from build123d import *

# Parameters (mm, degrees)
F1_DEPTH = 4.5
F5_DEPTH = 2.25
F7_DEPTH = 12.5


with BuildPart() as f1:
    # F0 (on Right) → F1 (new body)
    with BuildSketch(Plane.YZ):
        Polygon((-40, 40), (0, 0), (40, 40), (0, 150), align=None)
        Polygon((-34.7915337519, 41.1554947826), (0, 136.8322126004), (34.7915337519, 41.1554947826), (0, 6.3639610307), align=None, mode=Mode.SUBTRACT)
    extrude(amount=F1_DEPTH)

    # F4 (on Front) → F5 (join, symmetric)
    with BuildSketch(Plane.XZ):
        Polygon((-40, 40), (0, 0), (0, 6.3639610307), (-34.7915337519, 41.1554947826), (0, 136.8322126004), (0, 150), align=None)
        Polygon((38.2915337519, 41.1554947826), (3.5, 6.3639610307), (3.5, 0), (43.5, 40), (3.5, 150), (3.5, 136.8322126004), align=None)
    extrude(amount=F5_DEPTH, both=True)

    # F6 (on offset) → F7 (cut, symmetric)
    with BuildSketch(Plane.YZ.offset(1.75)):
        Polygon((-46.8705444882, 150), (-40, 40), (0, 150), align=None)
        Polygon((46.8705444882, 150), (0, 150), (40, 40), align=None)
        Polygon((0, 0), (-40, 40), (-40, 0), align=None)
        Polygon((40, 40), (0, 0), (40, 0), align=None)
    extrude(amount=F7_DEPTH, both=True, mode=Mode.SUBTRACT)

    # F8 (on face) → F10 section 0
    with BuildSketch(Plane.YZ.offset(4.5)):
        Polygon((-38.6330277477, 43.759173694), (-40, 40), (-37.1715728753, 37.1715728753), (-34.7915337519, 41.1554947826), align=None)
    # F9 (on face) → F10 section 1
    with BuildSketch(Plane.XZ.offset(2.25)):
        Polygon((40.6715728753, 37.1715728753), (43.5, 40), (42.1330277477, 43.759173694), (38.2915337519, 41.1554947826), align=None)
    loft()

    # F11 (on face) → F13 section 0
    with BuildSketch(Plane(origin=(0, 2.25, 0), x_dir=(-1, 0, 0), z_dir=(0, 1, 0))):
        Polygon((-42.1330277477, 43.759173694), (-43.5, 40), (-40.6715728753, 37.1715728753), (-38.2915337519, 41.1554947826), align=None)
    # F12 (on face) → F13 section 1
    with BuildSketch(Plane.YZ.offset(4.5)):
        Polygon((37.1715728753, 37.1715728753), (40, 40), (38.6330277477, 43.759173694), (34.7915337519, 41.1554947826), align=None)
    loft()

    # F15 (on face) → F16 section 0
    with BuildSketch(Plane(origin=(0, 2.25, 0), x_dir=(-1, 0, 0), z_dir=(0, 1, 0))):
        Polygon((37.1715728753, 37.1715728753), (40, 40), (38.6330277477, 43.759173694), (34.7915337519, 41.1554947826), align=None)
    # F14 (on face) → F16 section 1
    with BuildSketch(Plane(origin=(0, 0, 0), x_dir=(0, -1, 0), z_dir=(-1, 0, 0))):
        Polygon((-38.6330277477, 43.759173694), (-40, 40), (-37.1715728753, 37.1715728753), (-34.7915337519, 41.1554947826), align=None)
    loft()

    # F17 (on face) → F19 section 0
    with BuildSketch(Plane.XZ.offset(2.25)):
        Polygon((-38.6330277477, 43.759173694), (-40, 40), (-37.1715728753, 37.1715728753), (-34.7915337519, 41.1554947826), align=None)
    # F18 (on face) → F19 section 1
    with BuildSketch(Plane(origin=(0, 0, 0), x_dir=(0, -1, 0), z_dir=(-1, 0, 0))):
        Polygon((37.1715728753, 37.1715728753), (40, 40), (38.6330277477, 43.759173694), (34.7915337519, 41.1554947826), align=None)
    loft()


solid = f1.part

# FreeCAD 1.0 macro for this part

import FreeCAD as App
import Part
import Sketcher
from FreeCAD import Vector
Q = App.Units.Quantity

doc = App.newDocument("Part")
body = doc.addObject("PartDesign::Body", "Body")

# Sketch on YZ plane
sketch1 = doc.addObject("Sketcher::SketchObject", "Sketch")
body.addObject(sketch1)
sketch1.AttachmentSupport = (doc.YZ_Plane, [""])
sketch1.MapMode = "FlatFace"
sketch1.addGeometry([
    Part.LineSegment(Vector(-40, 40, 0), Vector(0, 0, 0)),  # 0
    Part.LineSegment(Vector(0, 0, 0), Vector(40, 40, 0)),  # 1
    Part.LineSegment(Vector(40, 40, 0), Vector(0, 150, 0)),  # 2
    Part.LineSegment(Vector(0, 150, 0), Vector(-40, 40, 0)),  # 3
    Part.LineSegment(Vector(0, 6, 0), Vector(-35, 41, 0)),  # 4
    Part.LineSegment(Vector(-35, 41, 0), Vector(0, 137, 0)),  # 5
    Part.LineSegment(Vector(0, 137, 0), Vector(35, 41, 0)),  # 6
    Part.LineSegment(Vector(35, 41, 0), Vector(0, 6, 0)),  # 7
], False)
sketch1.addConstraint([
    Sketcher.Constraint("Coincident", 0, 2, 1, 1),
    Sketcher.Constraint("Coincident", 1, 2, 2, 1),
    Sketcher.Constraint("Coincident", 2, 2, 3, 1),
    Sketcher.Constraint("Coincident", 3, 2, 0, 1),
    Sketcher.Constraint("Coincident", 4, 2, 5, 1),
    Sketcher.Constraint("Coincident", 5, 2, 6, 1),
    Sketcher.Constraint("Coincident", 6, 2, 7, 1),
    Sketcher.Constraint("Coincident", 7, 2, 4, 1),
    Sketcher.Constraint("Coincident", 0, 2, -1, 1),
    Sketcher.Constraint("Symmetric", 1, 2, 3, 2, -2),
    Sketcher.Constraint("Symmetric", 4, 2, 6, 2, -2),
    Sketcher.Constraint("PointOnObject", 2, 2, -2),
    Sketcher.Constraint("PointOnObject", 5, 2, -2),
    Sketcher.Constraint("PointOnObject", 7, 2, -2),
    Sketcher.Constraint("Perpendicular", 0, 1),
    Sketcher.Constraint("Perpendicular", 1, 4),
    Sketcher.Constraint("Parallel", 3, 5),
    Sketcher.Constraint("DistanceX", -1, 1, 1, 2, Q("40 mm")),
    Sketcher.Constraint("DistanceY", -1, 1, 2, 2, Q("150 mm")),
    Sketcher.Constraint("Distance", 4, Q("49.202659 mm")),
    Sketcher.Constraint("DistanceY", -1, 1, 7, 2, Q("6.363961 mm")),
])
pad1 = doc.addObject("PartDesign::Pad", "Pad")
body.addObject(pad1)
pad1.Profile = sketch1
pad1.Length = 4.5

# Sketch on XZ plane
sketch2 = doc.addObject("Sketcher::SketchObject", "Sketch001")
body.addObject(sketch2)
sketch2.AttachmentSupport = (doc.XZ_Plane, [""])
sketch2.MapMode = "FlatFace"
sketch2.addGeometry([
    Part.LineSegment(Vector(-40, 40, 0), Vector(0, 0, 0)),  # 0
    Part.LineSegment(Vector(0, 0, 0), Vector(0, 6, 0)),  # 1
    Part.LineSegment(Vector(0, 6, 0), Vector(-35, 41, 0)),  # 2
    Part.LineSegment(Vector(-35, 41, 0), Vector(0, 137, 0)),  # 3
    Part.LineSegment(Vector(0, 137, 0), Vector(0, 150, 0)),  # 4
    Part.LineSegment(Vector(0, 150, 0), Vector(-40, 40, 0)),  # 5
    Part.LineSegment(Vector(38, 41, 0), Vector(4, 6, 0)),  # 6
    Part.LineSegment(Vector(4, 6, 0), Vector(4, 0, 0)),  # 7
    Part.LineSegment(Vector(4, 0, 0), Vector(44, 40, 0)),  # 8
    Part.LineSegment(Vector(44, 40, 0), Vector(4, 150, 0)),  # 9
    Part.LineSegment(Vector(4, 150, 0), Vector(4, 137, 0)),  # 10
    Part.LineSegment(Vector(4, 137, 0), Vector(38, 41, 0)),  # 11
], False)
sketch2.addConstraint([
    Sketcher.Constraint("Coincident", 0, 2, 1, 1),
    Sketcher.Constraint("Coincident", 1, 2, 2, 1),
    Sketcher.Constraint("Coincident", 2, 2, 3, 1),
    Sketcher.Constraint("Coincident", 3, 2, 4, 1),
    Sketcher.Constraint("Coincident", 4, 2, 5, 1),
    Sketcher.Constraint("Coincident", 5, 2, 0, 1),
    Sketcher.Constraint("Coincident", 6, 2, 7, 1),
    Sketcher.Constraint("Coincident", 7, 2, 8, 1),
    Sketcher.Constraint("Coincident", 8, 2, 9, 1),
    Sketcher.Constraint("Coincident", 9, 2, 10, 1),
    Sketcher.Constraint("Coincident", 10, 2, 11, 1),
    Sketcher.Constraint("Coincident", 11, 2, 6, 1),
    Sketcher.Constraint("Vertical", 1),
    Sketcher.Constraint("Vertical", 4),
    Sketcher.Constraint("Vertical", 7),
    Sketcher.Constraint("Vertical", 10),
    Sketcher.Constraint("Coincident", 0, 2, -1, 1),
    Sketcher.Constraint("PointOnObject", 3, 2, -2),
    Sketcher.Constraint("PointOnObject", 7, 2, -1),
    Sketcher.Constraint("Parallel", 0, 2),
    Sketcher.Constraint("Parallel", 3, 5),
    Sketcher.Constraint("Perpendicular", 2, 6),
    Sketcher.Constraint("Parallel", 6, 8),
    Sketcher.Constraint("Parallel", 9, 11),
    Sketcher.Constraint("Horizontal", 1, 2, 6, 2),
    Sketcher.Constraint("Horizontal", 5, 2, 8, 2),
    Sketcher.Constraint("Horizontal", 4, 2, 9, 2),
    Sketcher.Constraint("Horizontal", 3, 2, 10, 2),
    Sketcher.Constraint("Horizontal", 2, 2, 11, 2),
    Sketcher.Constraint("Equal", 2, 6),
    Sketcher.Constraint("DistanceY", -1, 1, 4, 2, Q("150 mm")),
    Sketcher.Constraint("DistanceX", 5, 2, -1, 1, Q("40 mm")),
    Sketcher.Constraint("DistanceX", -1, 1, 6, 2, Q("3.5 mm")),
    Sketcher.Constraint("DistanceY", 1, 1, 1, 2, Q("6.363961 mm")),
    Sketcher.Constraint("Distance", 2, Q("49.202659 mm")),
])
pad2 = doc.addObject("PartDesign::Pad", "Pad001")
body.addObject(pad2)
pad2.Profile = sketch2
pad2.Length = 4.5
pad2.Midplane = True

# Sketch on YZ plane
sketch3 = doc.addObject("Sketcher::SketchObject", "Sketch002")
body.addObject(sketch3)
sketch3.AttachmentSupport = (doc.YZ_Plane, [""])
sketch3.MapMode = "FlatFace"
sketch3.AttachmentOffset = App.Placement(Vector(0, 0, 1.75), App.Rotation())
sketch3.addGeometry([
    Part.LineSegment(Vector(-47, 150, 0), Vector(-40, 40, 0)),  # 0
    Part.LineSegment(Vector(-40, 40, 0), Vector(0, 150, 0)),  # 1
    Part.LineSegment(Vector(0, 150, 0), Vector(-47, 150, 0)),  # 2
    Part.LineSegment(Vector(47, 150, 0), Vector(0, 150, 0)),  # 3
    Part.LineSegment(Vector(0, 150, 0), Vector(40, 40, 0)),  # 4
    Part.LineSegment(Vector(40, 40, 0), Vector(47, 150, 0)),  # 5
    Part.LineSegment(Vector(0, 0, 0), Vector(-40, 40, 0)),  # 6
    Part.LineSegment(Vector(-40, 40, 0), Vector(-40, 0, 0)),  # 7
    Part.LineSegment(Vector(-40, 0, 0), Vector(0, 0, 0)),  # 8
    Part.LineSegment(Vector(40, 40, 0), Vector(0, 0, 0)),  # 9
    Part.LineSegment(Vector(0, 0, 0), Vector(40, 0, 0)),  # 10
    Part.LineSegment(Vector(40, 0, 0), Vector(40, 40, 0)),  # 11
], False)
sketch3.addConstraint([
    Sketcher.Constraint("Coincident", 0, 2, 1, 1),
    Sketcher.Constraint("Coincident", 1, 2, 2, 1),
    Sketcher.Constraint("Coincident", 2, 2, 0, 1),
    Sketcher.Constraint("Coincident", 3, 2, 4, 1),
    Sketcher.Constraint("Coincident", 4, 2, 5, 1),
    Sketcher.Constraint("Coincident", 5, 2, 3, 1),
    Sketcher.Constraint("Coincident", 6, 2, 7, 1),
    Sketcher.Constraint("Coincident", 7, 2, 8, 1),
    Sketcher.Constraint("Coincident", 8, 2, 6, 1),
    Sketcher.Constraint("Coincident", 9, 2, 10, 1),
    Sketcher.Constraint("Coincident", 10, 2, 11, 1),
    Sketcher.Constraint("Coincident", 11, 2, 9, 1),
    Sketcher.Constraint("Horizontal", 2),
    Sketcher.Constraint("Horizontal", 3),
    Sketcher.Constraint("Vertical", 7),
    Sketcher.Constraint("Horizontal", 8),
    Sketcher.Constraint("Horizontal", 10),
    Sketcher.Constraint("Vertical", 11),
    Sketcher.Constraint("Coincident", 8, 2, -1, 1),
    Sketcher.Constraint("Coincident", 9, 2, -1, 1),
    Sketcher.Constraint("Coincident", 3, 2, 1, 2),
    Sketcher.Constraint("Coincident", 6, 2, 0, 2),
    Sketcher.Constraint("Coincident", 11, 2, 4, 2),
    Sketcher.Constraint("Symmetric", 0, 2, 4, 2, -2),
    Sketcher.Constraint("PointOnObject", 1, 2, -2),
    Sketcher.Constraint("Perpendicular", 6, 9),
    Sketcher.Constraint("Equal", 2, 3),
    Sketcher.Constraint("DistanceX", 8, 1, 8, 2, Q("40 mm")),
    Sketcher.Constraint("DistanceY", -1, 1, 1, 2, Q("150 mm")),
    Sketcher.Constraint("DistanceX", 2, 2, 2, 1, Q("46.870544 mm")),
])
pocket1 = doc.addObject("PartDesign::Pocket", "Pocket")
body.addObject(pocket1)
pocket1.Profile = sketch3
pocket1.Length = 25
pocket1.Midplane = True

# Sketch on YZ plane
sketch4 = doc.addObject("Sketcher::SketchObject", "Sketch003")
body.addObject(sketch4)
sketch4.AttachmentSupport = (doc.YZ_Plane, [""])
sketch4.MapMode = "FlatFace"
sketch4.AttachmentOffset = App.Placement(Vector(0, 0, 4.5), App.Rotation())
sketch4.addGeometry([
    Part.LineSegment(Vector(-38.6, 43.8, 0), Vector(-40, 40, 0)),
    Part.LineSegment(Vector(-40, 40, 0), Vector(-37.2, 37.2, 0)),
    Part.LineSegment(Vector(-37.2, 37.2, 0), Vector(-34.8, 41.2, 0)),
    Part.LineSegment(Vector(-34.8, 41.2, 0), Vector(-38.6, 43.8, 0)),
], False)
sketch4.addConstraint([
    Sketcher.Constraint("Coincident", 0, 2, 1, 1),
    Sketcher.Constraint("Coincident", 1, 2, 2, 1),
    Sketcher.Constraint("Coincident", 2, 2, 3, 1),
    Sketcher.Constraint("Coincident", 3, 2, 0, 1),
    Sketcher.Constraint("Equal", 0, 1),
    Sketcher.Constraint("Equal", 2, 3),
    Sketcher.Constraint("Angle", 1, Q("-45 deg")),
    Sketcher.Constraint("Distance", 0, Q("4 mm")),
    Sketcher.Constraint("DistanceX", 0, 2, -1, 1, Q("40 mm")),
    Sketcher.Constraint("DistanceY", -1, 1, 0, 2, Q("40 mm")),
    Sketcher.Constraint("DistanceY", 1, 2, 3, 2, Q("6.587601 mm")),
    Sketcher.Constraint("DistanceX", 1, 2, 2, 2, Q("2.380039 mm")),
])

# Sketch on XZ plane
sketch5 = doc.addObject("Sketcher::SketchObject", "Sketch004")
body.addObject(sketch5)
sketch5.AttachmentSupport = (doc.XZ_Plane, [""])
sketch5.MapMode = "FlatFace"
sketch5.AttachmentOffset = App.Placement(Vector(0, 0, 2.25), App.Rotation())
sketch5.addGeometry([
    Part.LineSegment(Vector(40.7, 37.2, 0), Vector(43.5, 40, 0)),
    Part.LineSegment(Vector(43.5, 40, 0), Vector(42.1, 43.8, 0)),
    Part.LineSegment(Vector(42.1, 43.8, 0), Vector(38.3, 41.2, 0)),
    Part.LineSegment(Vector(38.3, 41.2, 0), Vector(40.7, 37.2, 0)),
], False)
sketch5.addConstraint([
    Sketcher.Constraint("Coincident", 0, 2, 1, 1),
    Sketcher.Constraint("Coincident", 1, 2, 2, 1),
    Sketcher.Constraint("Coincident", 2, 2, 3, 1),
    Sketcher.Constraint("Coincident", 3, 2, 0, 1),
    Sketcher.Constraint("Equal", 0, 1),
    Sketcher.Constraint("Equal", 2, 3),
    Sketcher.Constraint("Angle", 0, Q("45 deg")),
    Sketcher.Constraint("Distance", 0, Q("4 mm")),
    Sketcher.Constraint("DistanceY", -1, 1, 0, 2, Q("40 mm")),
    Sketcher.Constraint("DistanceX", -1, 1, 0, 2, Q("43.5 mm")),
    Sketcher.Constraint("DistanceY", 3, 2, 1, 2, Q("6.587601 mm")),
    Sketcher.Constraint("DistanceY", 2, 2, 1, 2, Q("2.603679 mm")),
])

additiveloft = doc.addObject("PartDesign::AdditiveLoft", "AdditiveLoft")
body.addObject(additiveloft)
additiveloft.Profile = sketch4
additiveloft.Sections = [sketch5]

# Sketch on XZ plane
sketch6 = doc.addObject("Sketcher::SketchObject", "Sketch005")
body.addObject(sketch6)
sketch6.AttachmentSupport = (doc.XZ_Plane, [""])
sketch6.MapMode = "FlatFace"
sketch6.AttachmentOffset = App.Placement(Vector(0, 0, -2.25), App.Rotation())
sketch6.addGeometry([
    Part.LineSegment(Vector(42.1, 43.8, 0), Vector(43.5, 40, 0)),
    Part.LineSegment(Vector(43.5, 40, 0), Vector(40.7, 37.2, 0)),
    Part.LineSegment(Vector(40.7, 37.2, 0), Vector(38.3, 41.2, 0)),
    Part.LineSegment(Vector(38.3, 41.2, 0), Vector(42.1, 43.8, 0)),
], False)
sketch6.addConstraint([
    Sketcher.Constraint("Coincident", 0, 2, 1, 1),
    Sketcher.Constraint("Coincident", 1, 2, 2, 1),
    Sketcher.Constraint("Coincident", 2, 2, 3, 1),
    Sketcher.Constraint("Coincident", 3, 2, 0, 1),
    Sketcher.Constraint("Equal", 0, 1),
    Sketcher.Constraint("Equal", 2, 3),
    Sketcher.Constraint("Angle", 1, Q("-135 deg")),
    Sketcher.Constraint("Distance", 0, Q("4 mm")),
    Sketcher.Constraint("DistanceY", -1, 1, 0, 2, Q("40 mm")),
    Sketcher.Constraint("DistanceX", -1, 1, 0, 2, Q("43.5 mm")),
    Sketcher.Constraint("DistanceY", 1, 2, 3, 2, Q("6.587601 mm")),
    Sketcher.Constraint("DistanceX", 2, 2, 1, 2, Q("2.380039 mm")),
])

# Sketch on YZ plane
sketch7 = doc.addObject("Sketcher::SketchObject", "Sketch006")
body.addObject(sketch7)
sketch7.AttachmentSupport = (doc.YZ_Plane, [""])
sketch7.MapMode = "FlatFace"
sketch7.AttachmentOffset = App.Placement(Vector(0, 0, 4.5), App.Rotation())
sketch7.addGeometry([
    Part.LineSegment(Vector(37.2, 37.2, 0), Vector(40, 40, 0)),
    Part.LineSegment(Vector(40, 40, 0), Vector(38.6, 43.8, 0)),
    Part.LineSegment(Vector(38.6, 43.8, 0), Vector(34.8, 41.2, 0)),
    Part.LineSegment(Vector(34.8, 41.2, 0), Vector(37.2, 37.2, 0)),
], False)
sketch7.addConstraint([
    Sketcher.Constraint("Coincident", 0, 2, 1, 1),
    Sketcher.Constraint("Coincident", 1, 2, 2, 1),
    Sketcher.Constraint("Coincident", 2, 2, 3, 1),
    Sketcher.Constraint("Coincident", 3, 2, 0, 1),
    Sketcher.Constraint("Equal", 0, 1),
    Sketcher.Constraint("Equal", 2, 3),
    Sketcher.Constraint("Angle", 0, Q("45 deg")),
    Sketcher.Constraint("Distance", 0, Q("4 mm")),
    Sketcher.Constraint("DistanceX", -1, 1, 0, 2, Q("40 mm")),
    Sketcher.Constraint("DistanceY", -1, 1, 0, 2, Q("40 mm")),
    Sketcher.Constraint("DistanceY", 3, 2, 1, 2, Q("6.587601 mm")),
    Sketcher.Constraint("DistanceY", 2, 2, 1, 2, Q("2.603679 mm")),
])

additiveloft2 = doc.addObject("PartDesign::AdditiveLoft", "AdditiveLoft001")
body.addObject(additiveloft2)
additiveloft2.Profile = sketch6
additiveloft2.Sections = [sketch7]

# Sketch on XZ plane
sketch8 = doc.addObject("Sketcher::SketchObject", "Sketch007")
body.addObject(sketch8)
sketch8.AttachmentSupport = (doc.XZ_Plane, [""])
sketch8.MapMode = "FlatFace"
sketch8.AttachmentOffset = App.Placement(Vector(0, 0, -2.25), App.Rotation())
sketch8.addGeometry([
    Part.LineSegment(Vector(-37.2, 37.2, 0), Vector(-40, 40, 0)),
    Part.LineSegment(Vector(-40, 40, 0), Vector(-38.6, 43.8, 0)),
    Part.LineSegment(Vector(-38.6, 43.8, 0), Vector(-34.8, 41.2, 0)),
    Part.LineSegment(Vector(-34.8, 41.2, 0), Vector(-37.2, 37.2, 0)),
], False)
sketch8.addConstraint([
    Sketcher.Constraint("Coincident", 0, 2, 1, 1),
    Sketcher.Constraint("Coincident", 1, 2, 2, 1),
    Sketcher.Constraint("Coincident", 2, 2, 3, 1),
    Sketcher.Constraint("Coincident", 3, 2, 0, 1),
    Sketcher.Constraint("Equal", 0, 1),
    Sketcher.Constraint("Equal", 2, 3),
    Sketcher.Constraint("Angle", 0, Q("135 deg")),
    Sketcher.Constraint("Distance", 0, Q("4 mm")),
    Sketcher.Constraint("DistanceX", 0, 2, -1, 1, Q("40 mm")),
    Sketcher.Constraint("DistanceY", -1, 1, 0, 2, Q("40 mm")),
    Sketcher.Constraint("DistanceY", 3, 2, 1, 2, Q("6.587601 mm")),
    Sketcher.Constraint("DistanceY", 2, 2, 1, 2, Q("2.603679 mm")),
])

# Sketch on YZ plane
sketch9 = doc.addObject("Sketcher::SketchObject", "Sketch008")
body.addObject(sketch9)
sketch9.AttachmentSupport = (doc.YZ_Plane, [""])
sketch9.MapMode = "FlatFace"
sketch9.addGeometry([
    Part.LineSegment(Vector(38.6, 43.8, 0), Vector(40, 40, 0)),
    Part.LineSegment(Vector(40, 40, 0), Vector(37.2, 37.2, 0)),
    Part.LineSegment(Vector(37.2, 37.2, 0), Vector(34.8, 41.2, 0)),
    Part.LineSegment(Vector(34.8, 41.2, 0), Vector(38.6, 43.8, 0)),
], False)
sketch9.addConstraint([
    Sketcher.Constraint("Coincident", 0, 2, 1, 1),
    Sketcher.Constraint("Coincident", 1, 2, 2, 1),
    Sketcher.Constraint("Coincident", 2, 2, 3, 1),
    Sketcher.Constraint("Coincident", 3, 2, 0, 1),
    Sketcher.Constraint("Equal", 0, 1),
    Sketcher.Constraint("Equal", 2, 3),
    Sketcher.Constraint("Angle", 1, Q("-135 deg")),
    Sketcher.Constraint("Distance", 0, Q("4 mm")),
    Sketcher.Constraint("DistanceX", -1, 1, 0, 2, Q("40 mm")),
    Sketcher.Constraint("DistanceY", -1, 1, 0, 2, Q("40 mm")),
    Sketcher.Constraint("DistanceY", 1, 2, 3, 2, Q("6.587601 mm")),
    Sketcher.Constraint("DistanceX", 2, 2, 1, 2, Q("2.380039 mm")),
])

additiveloft3 = doc.addObject("PartDesign::AdditiveLoft", "AdditiveLoft002")
body.addObject(additiveloft3)
additiveloft3.Profile = sketch8
additiveloft3.Sections = [sketch9]

# Sketch on XZ plane
sketch10 = doc.addObject("Sketcher::SketchObject", "Sketch009")
body.addObject(sketch10)
sketch10.AttachmentSupport = (doc.XZ_Plane, [""])
sketch10.MapMode = "FlatFace"
sketch10.AttachmentOffset = App.Placement(Vector(0, 0, 2.25), App.Rotation())
sketch10.addGeometry([
    Part.LineSegment(Vector(-38.6, 43.8, 0), Vector(-40, 40, 0)),
    Part.LineSegment(Vector(-40, 40, 0), Vector(-37.2, 37.2, 0)),
    Part.LineSegment(Vector(-37.2, 37.2, 0), Vector(-34.8, 41.2, 0)),
    Part.LineSegment(Vector(-34.8, 41.2, 0), Vector(-38.6, 43.8, 0)),
], False)
sketch10.addConstraint([
    Sketcher.Constraint("Coincident", 0, 2, 1, 1),
    Sketcher.Constraint("Coincident", 1, 2, 2, 1),
    Sketcher.Constraint("Coincident", 2, 2, 3, 1),
    Sketcher.Constraint("Coincident", 3, 2, 0, 1),
    Sketcher.Constraint("Equal", 0, 1),
    Sketcher.Constraint("Equal", 2, 3),
    Sketcher.Constraint("Angle", 1, Q("-45 deg")),
    Sketcher.Constraint("Distance", 0, Q("4 mm")),
    Sketcher.Constraint("DistanceX", 0, 2, -1, 1, Q("40 mm")),
    Sketcher.Constraint("DistanceY", -1, 1, 0, 2, Q("40 mm")),
    Sketcher.Constraint("DistanceY", 1, 2, 3, 2, Q("6.587601 mm")),
    Sketcher.Constraint("DistanceX", 1, 2, 2, 2, Q("2.380039 mm")),
])

# Sketch on YZ plane
sketch11 = doc.addObject("Sketcher::SketchObject", "Sketch010")
body.addObject(sketch11)
sketch11.AttachmentSupport = (doc.YZ_Plane, [""])
sketch11.MapMode = "FlatFace"
sketch11.addGeometry([
    Part.LineSegment(Vector(-37.2, 37.2, 0), Vector(-40, 40, 0)),
    Part.LineSegment(Vector(-40, 40, 0), Vector(-38.6, 43.8, 0)),
    Part.LineSegment(Vector(-38.6, 43.8, 0), Vector(-34.8, 41.2, 0)),
    Part.LineSegment(Vector(-34.8, 41.2, 0), Vector(-37.2, 37.2, 0)),
], False)
sketch11.addConstraint([
    Sketcher.Constraint("Coincident", 0, 2, 1, 1),
    Sketcher.Constraint("Coincident", 1, 2, 2, 1),
    Sketcher.Constraint("Coincident", 2, 2, 3, 1),
    Sketcher.Constraint("Coincident", 3, 2, 0, 1),
    Sketcher.Constraint("Equal", 0, 1),
    Sketcher.Constraint("Equal", 2, 3),
    Sketcher.Constraint("Angle", 0, Q("135 deg")),
    Sketcher.Constraint("Distance", 0, Q("4 mm")),
    Sketcher.Constraint("DistanceX", 0, 2, -1, 1, Q("40 mm")),
    Sketcher.Constraint("DistanceY", -1, 1, 0, 2, Q("40 mm")),
    Sketcher.Constraint("DistanceY", 3, 2, 1, 2, Q("6.587601 mm")),
    Sketcher.Constraint("DistanceY", 2, 2, 1, 2, Q("2.603679 mm")),
])

additiveloft4 = doc.addObject("PartDesign::AdditiveLoft", "AdditiveLoft003")
body.addObject(additiveloft4)
additiveloft4.Profile = sketch10
additiveloft4.Sections = [sketch11]

doc.recompute()
